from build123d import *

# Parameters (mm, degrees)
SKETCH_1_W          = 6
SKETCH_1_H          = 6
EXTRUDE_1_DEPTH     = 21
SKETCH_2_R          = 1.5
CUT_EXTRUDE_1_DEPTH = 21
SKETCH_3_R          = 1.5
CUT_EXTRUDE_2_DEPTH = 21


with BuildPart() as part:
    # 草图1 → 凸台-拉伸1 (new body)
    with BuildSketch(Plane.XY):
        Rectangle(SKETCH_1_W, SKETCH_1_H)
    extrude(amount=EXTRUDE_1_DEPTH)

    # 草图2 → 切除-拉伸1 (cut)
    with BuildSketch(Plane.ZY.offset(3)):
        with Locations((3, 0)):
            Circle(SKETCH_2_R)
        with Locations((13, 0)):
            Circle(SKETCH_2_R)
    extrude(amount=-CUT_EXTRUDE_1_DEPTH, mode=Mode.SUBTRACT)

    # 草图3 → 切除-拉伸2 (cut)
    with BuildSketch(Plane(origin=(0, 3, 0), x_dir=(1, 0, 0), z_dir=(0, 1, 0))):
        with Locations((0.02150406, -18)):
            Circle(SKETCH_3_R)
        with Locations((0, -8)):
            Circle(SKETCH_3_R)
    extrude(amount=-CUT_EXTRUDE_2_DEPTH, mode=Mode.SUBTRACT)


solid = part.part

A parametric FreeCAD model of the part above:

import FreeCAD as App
import Part
import Sketcher

V = App.Vector

doc = App.newDocument("Part")
body = doc.addObject("PartDesign::Body", "Body")

# Sketch on XY plane
sketch1 = body.newObject("Sketcher::SketchObject", "Sketch")
sketch1.AttachmentSupport = (doc.getObject("XY_Plane"), [""])
sketch1.MapMode = "FlatFace"
sketch1.addGeometry(Part.LineSegment(V(-3, 3, 0), V(-3, -3, 0)), False)
sketch1.addGeometry(Part.LineSegment(V(-3, -3, 0), V(3, -3, 0)), False)
sketch1.addGeometry(Part.LineSegment(V(3, -3, 0), V(3, 3, 0)), False)
sketch1.addGeometry(Part.LineSegment(V(3, 3, 0), V(-3, 3, 0)), False)
sketch1.addConstraint(Sketcher.Constraint("Coincident", 0, 2, 1, 1))
sketch1.addConstraint(Sketcher.Constraint("Coincident", 1, 2, 2, 1))
sketch1.addConstraint(Sketcher.Constraint("Coincident", 2, 2, 3, 1))
sketch1.addConstraint(Sketcher.Constraint("Coincident", 3, 2, 0, 1))
sketch1.addConstraint(Sketcher.Constraint("Vertical", 0))
sketch1.addConstraint(Sketcher.Constraint("Horizontal", 1))
sketch1.addConstraint(Sketcher.Constraint("Vertical", 2))
sketch1.addConstraint(Sketcher.Constraint("Horizontal", 3))
sketch1.addConstraint(Sketcher.Constraint("Symmetric", 0, 2, 2, 2, -1, 1))
sketch1.addConstraint(Sketcher.Constraint("Equal", 3, 0))
sketch1.addConstraint(Sketcher.Constraint("DistanceX", 1, 1, 1, 2, 6.0))
pad1 = body.newObject("PartDesign::Pad", "Pad")
pad1.Profile = sketch1
pad1.Length = 21

# Sketch on YZ plane
sketch2 = body.newObject("Sketcher::SketchObject", "Sketch001")
sketch2.AttachmentSupport = (doc.getObject("YZ_Plane"), [""])
sketch2.MapMode = "FlatFace"
sketch2.AttachmentOffset = App.Placement(V(0, 0, -3), App.Rotation())
sketch2.addGeometry(Part.Circle(V(0, 3, 0), V(0, 0, 1), 1.5), False)
sketch2.addGeometry(Part.Circle(V(0, 13, 0), V(0, 0, 1), 1.5), False)
sketch2.addConstraint(Sketcher.Constraint("Equal", 0, 1))
sketch2.addConstraint(Sketcher.Constraint("PointOnObject", 0, 3, -2))
sketch2.addConstraint(Sketcher.Constraint("PointOnObject", 1, 3, -2))
sketch2.addConstraint(Sketcher.Constraint("Diameter", 0, 3.0))
sketch2.addConstraint(Sketcher.Constraint("DistanceY", -1, 1, 0, 3, 3.0))
sketch2.addConstraint(Sketcher.Constraint("DistanceY", -1, 1, 1, 3, 13.0))
pocket1 = body.newObject("PartDesign::Pocket", "Pocket")
pocket1.Profile = sketch2
pocket1.Length = 21
pocket1.Reversed = True

# Sketch on XZ plane
sketch3 = body.newObject("Sketcher::SketchObject", "Sketch002")
sketch3.AttachmentSupport = (doc.getObject("XZ_Plane"), [""])
sketch3.MapMode = "FlatFace"
sketch3.AttachmentOffset = App.Placement(V(0, 0, -3), App.Rotation())
sketch3.addGeometry(Part.Circle(V(0, 18, 0), V(0, 0, 1), 1.5), False)
sketch3.addGeometry(Part.Circle(V(0, 8, 0), V(0, 0, 1), 1.5), False)
sketch3.addConstraint(Sketcher.Constraint("Equal", 0, 1))
sketch3.addConstraint(Sketcher.Constraint("PointOnObject", 1, 3, -2))
sketch3.addConstraint(Sketcher.Constraint("Diameter", 0, 3.0))
sketch3.addConstraint(Sketcher.Constraint("DistanceY", -1, 1, 0, 3, 18.0))
sketch3.addConstraint(Sketcher.Constraint("DistanceY", -1, 1, 1, 3, 8.0))
sketch3.addConstraint(Sketcher.Constraint("DistanceX", -1, 1, 0, 3, 0.021504))
pocket2 = body.newObject("PartDesign::Pocket", "Pocket001")
pocket2.Profile = sketch3
pocket2.Length = 21
pocket2.Reversed = True

doc.recompute()
